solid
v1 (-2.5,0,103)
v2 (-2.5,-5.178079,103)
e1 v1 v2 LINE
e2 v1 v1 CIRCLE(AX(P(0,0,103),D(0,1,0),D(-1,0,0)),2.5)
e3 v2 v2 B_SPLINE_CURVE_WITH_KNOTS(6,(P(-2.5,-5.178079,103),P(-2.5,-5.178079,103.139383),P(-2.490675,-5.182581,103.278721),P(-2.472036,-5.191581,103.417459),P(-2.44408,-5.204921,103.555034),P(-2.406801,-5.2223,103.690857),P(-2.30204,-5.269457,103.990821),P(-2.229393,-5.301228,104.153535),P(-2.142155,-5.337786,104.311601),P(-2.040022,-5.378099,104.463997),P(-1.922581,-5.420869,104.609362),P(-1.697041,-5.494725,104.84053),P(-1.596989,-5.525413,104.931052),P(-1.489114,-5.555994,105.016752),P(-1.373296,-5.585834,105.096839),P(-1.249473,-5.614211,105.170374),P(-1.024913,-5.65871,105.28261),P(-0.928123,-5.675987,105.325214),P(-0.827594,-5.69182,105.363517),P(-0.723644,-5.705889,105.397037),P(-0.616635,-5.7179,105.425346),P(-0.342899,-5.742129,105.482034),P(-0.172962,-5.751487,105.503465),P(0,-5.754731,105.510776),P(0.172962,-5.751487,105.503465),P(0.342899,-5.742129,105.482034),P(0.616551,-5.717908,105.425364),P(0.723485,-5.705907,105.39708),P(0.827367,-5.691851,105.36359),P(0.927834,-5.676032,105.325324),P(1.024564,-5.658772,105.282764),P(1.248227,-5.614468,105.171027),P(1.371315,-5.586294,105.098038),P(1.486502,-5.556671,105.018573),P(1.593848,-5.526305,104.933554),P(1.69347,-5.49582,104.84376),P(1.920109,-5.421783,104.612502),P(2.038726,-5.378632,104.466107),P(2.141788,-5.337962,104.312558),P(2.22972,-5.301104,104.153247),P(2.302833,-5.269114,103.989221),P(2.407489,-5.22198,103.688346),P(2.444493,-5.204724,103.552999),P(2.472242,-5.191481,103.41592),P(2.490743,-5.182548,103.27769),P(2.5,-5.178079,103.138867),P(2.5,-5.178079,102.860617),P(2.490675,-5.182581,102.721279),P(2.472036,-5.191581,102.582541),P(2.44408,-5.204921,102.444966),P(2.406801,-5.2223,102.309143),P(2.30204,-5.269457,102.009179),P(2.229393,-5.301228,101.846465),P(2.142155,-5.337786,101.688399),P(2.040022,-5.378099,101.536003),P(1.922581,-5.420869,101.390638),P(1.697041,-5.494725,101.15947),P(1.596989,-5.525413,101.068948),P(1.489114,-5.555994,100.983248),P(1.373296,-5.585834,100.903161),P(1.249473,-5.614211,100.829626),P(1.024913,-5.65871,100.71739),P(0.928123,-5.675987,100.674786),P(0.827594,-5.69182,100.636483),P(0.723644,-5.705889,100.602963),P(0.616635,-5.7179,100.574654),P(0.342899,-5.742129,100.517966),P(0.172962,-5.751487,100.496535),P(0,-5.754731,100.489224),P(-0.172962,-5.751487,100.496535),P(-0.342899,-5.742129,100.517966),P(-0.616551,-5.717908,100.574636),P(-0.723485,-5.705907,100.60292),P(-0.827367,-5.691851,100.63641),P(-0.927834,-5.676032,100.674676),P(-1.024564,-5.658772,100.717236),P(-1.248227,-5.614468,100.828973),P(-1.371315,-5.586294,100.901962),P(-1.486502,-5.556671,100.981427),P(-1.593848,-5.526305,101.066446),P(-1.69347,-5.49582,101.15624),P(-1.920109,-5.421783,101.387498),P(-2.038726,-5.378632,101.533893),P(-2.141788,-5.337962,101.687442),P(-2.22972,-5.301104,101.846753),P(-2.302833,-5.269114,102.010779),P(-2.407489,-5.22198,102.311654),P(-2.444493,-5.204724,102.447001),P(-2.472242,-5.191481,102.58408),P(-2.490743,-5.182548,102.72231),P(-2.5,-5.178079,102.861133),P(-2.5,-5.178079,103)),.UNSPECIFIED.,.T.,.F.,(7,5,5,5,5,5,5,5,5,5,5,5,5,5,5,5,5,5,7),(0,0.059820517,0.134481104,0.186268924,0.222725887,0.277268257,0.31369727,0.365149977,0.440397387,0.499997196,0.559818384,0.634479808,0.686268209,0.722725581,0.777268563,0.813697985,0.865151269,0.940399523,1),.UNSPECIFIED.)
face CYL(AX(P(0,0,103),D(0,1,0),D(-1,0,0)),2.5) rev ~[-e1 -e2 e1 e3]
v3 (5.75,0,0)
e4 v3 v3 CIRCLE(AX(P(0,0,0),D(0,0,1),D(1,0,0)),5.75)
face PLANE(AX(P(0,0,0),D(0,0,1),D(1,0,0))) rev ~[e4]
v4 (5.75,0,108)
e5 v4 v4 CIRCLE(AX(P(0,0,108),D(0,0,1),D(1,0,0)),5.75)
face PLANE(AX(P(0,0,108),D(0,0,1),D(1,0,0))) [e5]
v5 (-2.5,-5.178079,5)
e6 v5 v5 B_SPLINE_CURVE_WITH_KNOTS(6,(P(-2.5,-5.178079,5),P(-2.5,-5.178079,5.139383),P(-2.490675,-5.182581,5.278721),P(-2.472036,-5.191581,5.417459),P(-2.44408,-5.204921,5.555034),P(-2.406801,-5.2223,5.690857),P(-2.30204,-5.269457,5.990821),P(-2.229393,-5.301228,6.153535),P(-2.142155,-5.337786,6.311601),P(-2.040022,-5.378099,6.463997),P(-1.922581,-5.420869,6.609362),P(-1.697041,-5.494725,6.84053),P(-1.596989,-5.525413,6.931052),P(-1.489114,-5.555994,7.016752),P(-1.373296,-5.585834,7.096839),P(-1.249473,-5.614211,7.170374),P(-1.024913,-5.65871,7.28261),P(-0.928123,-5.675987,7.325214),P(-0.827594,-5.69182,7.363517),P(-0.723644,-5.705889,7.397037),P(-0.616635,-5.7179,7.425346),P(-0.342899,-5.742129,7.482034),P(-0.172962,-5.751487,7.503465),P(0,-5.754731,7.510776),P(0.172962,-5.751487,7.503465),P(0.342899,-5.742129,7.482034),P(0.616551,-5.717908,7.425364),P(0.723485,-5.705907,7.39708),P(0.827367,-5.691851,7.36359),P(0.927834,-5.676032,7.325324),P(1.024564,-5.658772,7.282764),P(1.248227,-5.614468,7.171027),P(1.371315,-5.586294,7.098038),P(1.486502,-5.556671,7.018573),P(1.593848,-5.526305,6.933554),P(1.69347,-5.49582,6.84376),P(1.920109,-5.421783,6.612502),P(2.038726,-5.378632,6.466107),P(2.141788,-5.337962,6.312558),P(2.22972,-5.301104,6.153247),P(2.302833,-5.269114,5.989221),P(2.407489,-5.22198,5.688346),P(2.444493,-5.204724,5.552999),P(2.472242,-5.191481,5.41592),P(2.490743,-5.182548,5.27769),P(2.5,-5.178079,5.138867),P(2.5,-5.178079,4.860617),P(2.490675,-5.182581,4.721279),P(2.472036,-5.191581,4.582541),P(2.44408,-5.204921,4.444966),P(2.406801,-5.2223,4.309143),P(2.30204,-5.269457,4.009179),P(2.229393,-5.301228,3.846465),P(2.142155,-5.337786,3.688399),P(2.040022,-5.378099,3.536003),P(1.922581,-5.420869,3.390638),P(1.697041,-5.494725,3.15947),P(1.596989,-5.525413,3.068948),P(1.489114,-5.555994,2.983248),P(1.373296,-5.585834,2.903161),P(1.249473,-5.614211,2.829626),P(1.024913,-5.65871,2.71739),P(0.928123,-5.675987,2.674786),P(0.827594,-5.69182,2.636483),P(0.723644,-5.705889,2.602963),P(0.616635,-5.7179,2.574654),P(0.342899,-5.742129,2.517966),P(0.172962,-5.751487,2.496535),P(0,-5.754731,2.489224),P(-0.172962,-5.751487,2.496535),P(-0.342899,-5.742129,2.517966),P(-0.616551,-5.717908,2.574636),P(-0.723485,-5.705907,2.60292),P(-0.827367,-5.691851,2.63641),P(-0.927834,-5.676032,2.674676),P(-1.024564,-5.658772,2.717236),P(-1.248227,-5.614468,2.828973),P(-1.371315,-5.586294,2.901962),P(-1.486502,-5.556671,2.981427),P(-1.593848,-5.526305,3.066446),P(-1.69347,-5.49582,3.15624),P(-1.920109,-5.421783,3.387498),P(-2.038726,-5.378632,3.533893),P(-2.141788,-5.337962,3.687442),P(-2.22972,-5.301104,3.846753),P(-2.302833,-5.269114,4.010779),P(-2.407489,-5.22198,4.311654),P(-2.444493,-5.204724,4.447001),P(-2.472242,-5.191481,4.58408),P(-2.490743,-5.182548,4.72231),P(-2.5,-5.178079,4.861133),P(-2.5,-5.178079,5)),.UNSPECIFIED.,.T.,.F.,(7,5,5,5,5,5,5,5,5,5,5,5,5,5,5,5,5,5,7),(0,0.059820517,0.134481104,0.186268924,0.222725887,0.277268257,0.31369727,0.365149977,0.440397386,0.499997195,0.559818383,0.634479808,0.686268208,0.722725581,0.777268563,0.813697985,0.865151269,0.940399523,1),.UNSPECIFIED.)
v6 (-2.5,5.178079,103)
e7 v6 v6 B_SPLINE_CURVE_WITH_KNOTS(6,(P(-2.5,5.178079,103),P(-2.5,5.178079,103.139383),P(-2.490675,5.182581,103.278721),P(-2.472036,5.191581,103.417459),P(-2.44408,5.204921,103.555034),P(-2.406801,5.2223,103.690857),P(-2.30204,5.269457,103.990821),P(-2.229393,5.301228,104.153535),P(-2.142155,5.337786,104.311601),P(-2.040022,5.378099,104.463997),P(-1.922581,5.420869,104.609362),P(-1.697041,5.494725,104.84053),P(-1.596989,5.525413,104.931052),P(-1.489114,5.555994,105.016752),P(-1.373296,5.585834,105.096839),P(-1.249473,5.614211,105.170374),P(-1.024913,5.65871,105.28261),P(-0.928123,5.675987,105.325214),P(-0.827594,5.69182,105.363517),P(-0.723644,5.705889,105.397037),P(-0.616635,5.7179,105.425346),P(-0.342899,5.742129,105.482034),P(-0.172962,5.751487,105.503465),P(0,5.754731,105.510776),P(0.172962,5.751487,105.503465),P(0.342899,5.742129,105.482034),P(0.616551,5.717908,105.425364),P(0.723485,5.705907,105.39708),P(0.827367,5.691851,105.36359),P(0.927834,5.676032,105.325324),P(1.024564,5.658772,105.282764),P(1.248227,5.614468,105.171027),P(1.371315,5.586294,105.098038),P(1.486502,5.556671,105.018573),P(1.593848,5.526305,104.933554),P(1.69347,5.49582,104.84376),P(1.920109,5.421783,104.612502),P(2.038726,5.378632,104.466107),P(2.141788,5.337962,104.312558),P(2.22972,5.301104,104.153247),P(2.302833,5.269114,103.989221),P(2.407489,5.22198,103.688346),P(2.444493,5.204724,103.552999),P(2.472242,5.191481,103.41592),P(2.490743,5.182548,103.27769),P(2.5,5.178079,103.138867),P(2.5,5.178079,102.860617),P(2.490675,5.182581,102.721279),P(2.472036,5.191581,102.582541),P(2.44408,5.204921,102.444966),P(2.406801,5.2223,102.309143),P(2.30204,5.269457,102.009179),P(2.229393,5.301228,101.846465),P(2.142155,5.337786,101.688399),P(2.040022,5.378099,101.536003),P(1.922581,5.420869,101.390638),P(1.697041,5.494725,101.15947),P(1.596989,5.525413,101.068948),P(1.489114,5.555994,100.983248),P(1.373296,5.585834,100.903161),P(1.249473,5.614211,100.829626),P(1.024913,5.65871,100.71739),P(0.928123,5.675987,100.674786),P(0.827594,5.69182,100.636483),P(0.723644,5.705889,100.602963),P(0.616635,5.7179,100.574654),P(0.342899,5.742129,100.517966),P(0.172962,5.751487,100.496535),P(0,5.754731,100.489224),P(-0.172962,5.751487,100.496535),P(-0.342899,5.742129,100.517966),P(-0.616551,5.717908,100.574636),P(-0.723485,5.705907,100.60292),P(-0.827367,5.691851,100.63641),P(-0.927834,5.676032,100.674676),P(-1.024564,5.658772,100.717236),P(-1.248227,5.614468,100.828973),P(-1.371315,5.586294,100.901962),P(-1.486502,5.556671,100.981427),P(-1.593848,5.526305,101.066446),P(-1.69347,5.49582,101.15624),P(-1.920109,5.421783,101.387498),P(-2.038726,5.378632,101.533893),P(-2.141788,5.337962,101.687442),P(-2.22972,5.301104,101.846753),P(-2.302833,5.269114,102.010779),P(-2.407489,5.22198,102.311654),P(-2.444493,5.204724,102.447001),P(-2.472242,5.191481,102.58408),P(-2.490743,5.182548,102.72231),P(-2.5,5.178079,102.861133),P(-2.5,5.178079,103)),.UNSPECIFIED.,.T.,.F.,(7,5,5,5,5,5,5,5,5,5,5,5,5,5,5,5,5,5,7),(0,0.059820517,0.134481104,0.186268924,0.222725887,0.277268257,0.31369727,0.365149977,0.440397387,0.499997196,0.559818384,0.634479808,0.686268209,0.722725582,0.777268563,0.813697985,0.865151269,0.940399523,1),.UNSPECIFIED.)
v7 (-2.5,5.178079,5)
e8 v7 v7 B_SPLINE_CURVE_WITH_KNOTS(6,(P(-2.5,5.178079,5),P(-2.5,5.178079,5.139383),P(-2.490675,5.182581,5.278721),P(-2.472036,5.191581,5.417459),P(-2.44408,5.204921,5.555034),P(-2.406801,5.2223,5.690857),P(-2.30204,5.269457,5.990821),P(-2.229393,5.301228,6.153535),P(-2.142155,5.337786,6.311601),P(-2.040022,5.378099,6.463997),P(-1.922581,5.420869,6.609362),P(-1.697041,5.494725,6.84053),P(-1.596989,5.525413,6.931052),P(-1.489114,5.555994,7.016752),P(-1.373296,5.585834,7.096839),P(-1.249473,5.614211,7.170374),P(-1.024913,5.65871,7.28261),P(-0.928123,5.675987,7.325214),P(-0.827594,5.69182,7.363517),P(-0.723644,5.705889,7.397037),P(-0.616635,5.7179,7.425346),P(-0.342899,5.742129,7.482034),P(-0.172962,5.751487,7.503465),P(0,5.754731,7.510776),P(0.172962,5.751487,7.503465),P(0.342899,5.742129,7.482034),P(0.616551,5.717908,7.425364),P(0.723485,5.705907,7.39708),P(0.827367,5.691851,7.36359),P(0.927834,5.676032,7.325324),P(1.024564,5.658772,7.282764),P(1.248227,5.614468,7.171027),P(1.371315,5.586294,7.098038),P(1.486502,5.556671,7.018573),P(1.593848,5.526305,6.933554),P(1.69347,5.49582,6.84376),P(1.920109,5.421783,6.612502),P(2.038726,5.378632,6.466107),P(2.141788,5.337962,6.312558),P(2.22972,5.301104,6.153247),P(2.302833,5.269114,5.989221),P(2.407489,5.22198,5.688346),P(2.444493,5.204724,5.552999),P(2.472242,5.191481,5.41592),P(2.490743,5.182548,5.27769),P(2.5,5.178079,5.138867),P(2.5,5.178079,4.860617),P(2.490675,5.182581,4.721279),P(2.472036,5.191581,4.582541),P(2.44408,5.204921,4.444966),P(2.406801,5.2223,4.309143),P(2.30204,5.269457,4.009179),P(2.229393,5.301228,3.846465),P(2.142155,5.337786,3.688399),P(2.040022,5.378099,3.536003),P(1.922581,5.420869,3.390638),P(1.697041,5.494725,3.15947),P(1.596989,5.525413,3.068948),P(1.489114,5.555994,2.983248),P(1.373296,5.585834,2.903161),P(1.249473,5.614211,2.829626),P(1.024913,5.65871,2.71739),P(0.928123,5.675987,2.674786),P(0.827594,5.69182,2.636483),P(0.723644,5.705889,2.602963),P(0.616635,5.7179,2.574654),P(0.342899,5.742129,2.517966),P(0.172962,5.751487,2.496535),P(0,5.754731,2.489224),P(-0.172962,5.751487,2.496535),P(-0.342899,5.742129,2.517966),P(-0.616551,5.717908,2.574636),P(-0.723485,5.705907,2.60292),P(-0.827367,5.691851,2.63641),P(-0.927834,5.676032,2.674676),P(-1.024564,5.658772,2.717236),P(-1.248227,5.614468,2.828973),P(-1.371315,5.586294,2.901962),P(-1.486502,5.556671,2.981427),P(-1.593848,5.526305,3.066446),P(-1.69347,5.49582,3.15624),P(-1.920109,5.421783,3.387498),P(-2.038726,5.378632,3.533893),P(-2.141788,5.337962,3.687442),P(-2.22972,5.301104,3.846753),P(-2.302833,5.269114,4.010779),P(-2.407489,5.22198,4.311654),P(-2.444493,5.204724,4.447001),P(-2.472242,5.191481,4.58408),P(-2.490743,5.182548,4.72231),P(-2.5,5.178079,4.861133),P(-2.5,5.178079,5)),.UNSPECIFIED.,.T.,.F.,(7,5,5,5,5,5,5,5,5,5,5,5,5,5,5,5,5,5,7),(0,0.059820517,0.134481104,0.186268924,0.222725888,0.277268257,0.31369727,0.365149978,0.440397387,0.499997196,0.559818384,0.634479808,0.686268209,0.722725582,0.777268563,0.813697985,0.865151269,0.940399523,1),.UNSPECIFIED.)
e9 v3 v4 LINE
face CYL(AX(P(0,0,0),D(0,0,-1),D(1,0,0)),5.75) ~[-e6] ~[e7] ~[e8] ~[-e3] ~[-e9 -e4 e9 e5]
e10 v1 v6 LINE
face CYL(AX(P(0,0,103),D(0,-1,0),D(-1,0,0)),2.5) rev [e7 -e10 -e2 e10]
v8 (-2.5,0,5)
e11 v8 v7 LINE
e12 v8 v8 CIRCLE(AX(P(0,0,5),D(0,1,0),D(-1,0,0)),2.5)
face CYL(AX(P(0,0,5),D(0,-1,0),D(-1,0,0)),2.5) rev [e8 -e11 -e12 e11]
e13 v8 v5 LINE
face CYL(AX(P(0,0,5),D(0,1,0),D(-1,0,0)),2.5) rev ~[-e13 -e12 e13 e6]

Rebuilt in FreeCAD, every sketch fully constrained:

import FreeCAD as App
import Part
import Sketcher
from FreeCAD import Vector

doc = App.newDocument("Part")
body = doc.addObject("PartDesign::Body", "Body")

sketch1 = body.newObject("Sketcher::SketchObject", "Sketch")
sketch1.AttachmentSupport = (doc.getObject("XY_Plane"), [""])
sketch1.MapMode = "FlatFace"
sketch1.addGeometry(Part.Circle(Vector(0, 0, 0), Vector(0, 0, 1), 6), False)
sketch1.addConstraint(Sketcher.Constraint("Coincident", 0, 3, -1, 1))
sketch1.addConstraint(Sketcher.Constraint("Diameter", 0, 11.5))
pad1 = body.newObject("PartDesign::Pad", "Pad")
pad1.Profile = sketch1
pad1.Length = 108

sketch2 = body.newObject("Sketcher::SketchObject", "Sketch001")
sketch2.AttachmentSupport = (doc.getObject("XZ_Plane"), [""])
sketch2.MapMode = "FlatFace"
sketch2.addGeometry(Part.Circle(Vector(0, 103, 0), Vector(0, 0, 1), 2.5), False)
sketch2.addGeometry(Part.Circle(Vector(0, 5, 0), Vector(0, 0, 1), 2.5), False)
sketch2.addConstraint(Sketcher.Constraint("Equal", 0, 1))
sketch2.addConstraint(Sketcher.Constraint("PointOnObject", 0, 3, -2))
sketch2.addConstraint(Sketcher.Constraint("PointOnObject", 1, 3, -2))
sketch2.addConstraint(Sketcher.Constraint("Diameter", 0, 5.0))
sketch2.addConstraint(Sketcher.Constraint("DistanceY", -1, 1, 1, 3, 5.0))
sketch2.addConstraint(Sketcher.Constraint("DistanceY", -1, 1, 0, 3, 103.0))
pocket1 = body.newObject("PartDesign::Pocket", "Pocket")
pocket1.Profile = sketch2
pocket1.Type = "ThroughAll"
pocket1.Midplane = True

doc.recompute()
